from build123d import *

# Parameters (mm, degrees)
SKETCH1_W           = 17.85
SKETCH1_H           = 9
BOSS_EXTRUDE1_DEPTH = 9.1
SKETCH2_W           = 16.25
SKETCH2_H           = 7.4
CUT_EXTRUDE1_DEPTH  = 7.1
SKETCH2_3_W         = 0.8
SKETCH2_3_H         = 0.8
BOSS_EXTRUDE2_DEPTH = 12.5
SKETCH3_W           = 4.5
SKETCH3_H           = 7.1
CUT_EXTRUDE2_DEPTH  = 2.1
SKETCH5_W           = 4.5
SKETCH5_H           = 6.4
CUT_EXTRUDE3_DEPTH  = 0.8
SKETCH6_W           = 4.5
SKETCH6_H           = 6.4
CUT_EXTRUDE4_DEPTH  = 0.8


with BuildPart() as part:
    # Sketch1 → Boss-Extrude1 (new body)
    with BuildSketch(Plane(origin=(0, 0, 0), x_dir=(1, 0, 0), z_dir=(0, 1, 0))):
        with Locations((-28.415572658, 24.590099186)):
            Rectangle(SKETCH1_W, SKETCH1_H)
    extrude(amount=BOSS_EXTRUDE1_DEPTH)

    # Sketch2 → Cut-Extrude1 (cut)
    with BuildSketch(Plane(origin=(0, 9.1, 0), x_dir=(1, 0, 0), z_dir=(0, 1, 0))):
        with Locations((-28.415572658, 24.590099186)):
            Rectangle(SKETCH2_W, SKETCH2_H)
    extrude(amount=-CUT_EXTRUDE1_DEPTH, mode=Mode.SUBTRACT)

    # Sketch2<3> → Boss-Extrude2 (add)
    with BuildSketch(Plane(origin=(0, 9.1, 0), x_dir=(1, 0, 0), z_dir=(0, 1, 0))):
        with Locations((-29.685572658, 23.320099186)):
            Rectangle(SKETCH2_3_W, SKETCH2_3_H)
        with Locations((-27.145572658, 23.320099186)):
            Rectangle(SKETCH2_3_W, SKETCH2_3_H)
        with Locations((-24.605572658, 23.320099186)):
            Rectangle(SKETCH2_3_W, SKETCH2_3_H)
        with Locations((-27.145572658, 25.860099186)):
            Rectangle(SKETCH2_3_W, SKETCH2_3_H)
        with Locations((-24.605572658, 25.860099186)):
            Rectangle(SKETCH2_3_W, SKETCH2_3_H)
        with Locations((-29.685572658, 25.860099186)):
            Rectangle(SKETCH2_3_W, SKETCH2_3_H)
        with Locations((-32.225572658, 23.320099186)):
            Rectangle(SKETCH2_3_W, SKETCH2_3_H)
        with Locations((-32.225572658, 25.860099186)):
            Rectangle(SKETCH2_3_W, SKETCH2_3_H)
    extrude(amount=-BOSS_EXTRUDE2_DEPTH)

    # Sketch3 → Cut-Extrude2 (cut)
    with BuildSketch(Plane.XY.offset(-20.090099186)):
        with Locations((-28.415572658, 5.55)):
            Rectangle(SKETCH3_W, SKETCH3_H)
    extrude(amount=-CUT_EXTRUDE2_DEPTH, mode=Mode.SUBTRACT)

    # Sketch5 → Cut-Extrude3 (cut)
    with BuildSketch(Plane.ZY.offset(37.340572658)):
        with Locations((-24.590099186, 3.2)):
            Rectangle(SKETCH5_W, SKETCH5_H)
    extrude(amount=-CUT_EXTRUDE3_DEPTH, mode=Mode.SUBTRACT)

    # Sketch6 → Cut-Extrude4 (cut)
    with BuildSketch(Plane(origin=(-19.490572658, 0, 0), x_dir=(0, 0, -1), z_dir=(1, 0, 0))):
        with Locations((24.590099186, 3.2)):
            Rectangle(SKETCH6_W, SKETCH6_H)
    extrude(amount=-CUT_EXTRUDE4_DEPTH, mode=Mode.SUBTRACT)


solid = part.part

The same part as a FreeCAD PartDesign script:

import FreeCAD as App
import Part
import Sketcher
from FreeCAD import Vector

doc = App.newDocument("Part")
body = doc.addObject("PartDesign::Body", "Body")

# Sketch on XZ plane
sketch1 = doc.addObject("Sketcher::SketchObject", "Sketch")
body.addObject(sketch1)
sketch1.AttachmentSupport = (doc.XZ_Plane, [""])
sketch1.MapMode = "FlatFace"
sketch1.addGeometry(Part.LineSegment(Vector(-37, -29, 0), Vector(-37, -20, 0)), False)
sketch1.addGeometry(Part.LineSegment(Vector(-37, -20, 0), Vector(-19, -20, 0)), False)
sketch1.addGeometry(Part.LineSegment(Vector(-19, -20, 0), Vector(-19, -29, 0)), False)
sketch1.addGeometry(Part.LineSegment(Vector(-19, -29, 0), Vector(-37, -29, 0)), False)
sketch1.addConstraint(Sketcher.Constraint("Coincident", 0, 2, 1, 1))
sketch1.addConstraint(Sketcher.Constraint("Coincident", 1, 2, 2, 1))
sketch1.addConstraint(Sketcher.Constraint("Coincident", 2, 2, 3, 1))
sketch1.addConstraint(Sketcher.Constraint("Coincident", 3, 2, 0, 1))
sketch1.addConstraint(Sketcher.Constraint("Vertical", 0))
sketch1.addConstraint(Sketcher.Constraint("Horizontal", 1))
sketch1.addConstraint(Sketcher.Constraint("Vertical", 2))
sketch1.addConstraint(Sketcher.Constraint("Horizontal", 3))
sketch1.addConstraint(Sketcher.Constraint("DistanceY", 0, 1, 0, 2, 9.0))
sketch1.addConstraint(Sketcher.Constraint("DistanceX", 1, 1, 1, 2, 17.85))
sketch1.addConstraint(Sketcher.Constraint("DistanceY", 0, 2, -1, 1, 20.090099))
sketch1.addConstraint(Sketcher.Constraint("DistanceX", 0, 2, -1, 1, 37.340573))
pad1 = doc.addObject("PartDesign::Pad", "Pad")
body.addObject(pad1)
pad1.Profile = sketch1
pad1.Length = 9.1
pad1.Reversed = True

# Sketch on XZ plane
sketch2 = doc.addObject("Sketcher::SketchObject", "Sketch001")
body.addObject(sketch2)
sketch2.AttachmentSupport = (doc.XZ_Plane, [""])
sketch2.MapMode = "FlatFace"
sketch2.AttachmentOffset = App.Placement(Vector(0, 0, -9.1), App.Rotation())
sketch2.addGeometry(Part.LineSegment(Vector(-37, -28, 0), Vector(-37, -21, 0)), False)
sketch2.addGeometry(Part.LineSegment(Vector(-37, -21, 0), Vector(-20, -21, 0)), False)
sketch2.addGeometry(Part.LineSegment(Vector(-20, -21, 0), Vector(-20, -28, 0)), False)
sketch2.addGeometry(Part.LineSegment(Vector(-20, -28, 0), Vector(-37, -28, 0)), False)
sketch2.addConstraint(Sketcher.Constraint("Coincident", 0, 2, 1, 1))
sketch2.addConstraint(Sketcher.Constraint("Coincident", 1, 2, 2, 1))
sketch2.addConstraint(Sketcher.Constraint("Coincident", 2, 2, 3, 1))
sketch2.addConstraint(Sketcher.Constraint("Coincident", 3, 2, 0, 1))
sketch2.addConstraint(Sketcher.Constraint("Vertical", 0))
sketch2.addConstraint(Sketcher.Constraint("Horizontal", 1))
sketch2.addConstraint(Sketcher.Constraint("Vertical", 2))
sketch2.addConstraint(Sketcher.Constraint("Horizontal", 3))
sketch2.addConstraint(Sketcher.Constraint("DistanceY", 0, 1, 0, 2, 7.4))
sketch2.addConstraint(Sketcher.Constraint("DistanceX", 1, 1, 1, 2, 16.25))
sketch2.addConstraint(Sketcher.Constraint("DistanceY", 0, 2, -1, 1, 20.890099))
sketch2.addConstraint(Sketcher.Constraint("DistanceX", 0, 2, -1, 1, 36.540573))
pocket1 = doc.addObject("PartDesign::Pocket", "Pocket")
body.addObject(pocket1)
pocket1.Profile = sketch2
pocket1.Length = 7.1
pocket1.Reversed = True

# Sketch on XZ plane
sketch3 = doc.addObject("Sketcher::SketchObject", "Sketch002")
body.addObject(sketch3)
sketch3.AttachmentSupport = (doc.XZ_Plane, [""])
sketch3.MapMode = "FlatFace"
sketch3.AttachmentOffset = App.Placement(Vector(0, 0, -9.1), App.Rotation())
sketch3.addGeometry(Part.LineSegment(Vector(-30.1, -23.7, 0), Vector(-30.1, -22.9, 0)), False)
sketch3.addGeometry(Part.LineSegment(Vector(-30.1, -22.9, 0), Vector(-29.3, -22.9, 0)), False)
sketch3.addGeometry(Part.LineSegment(Vector(-29.3, -22.9, 0), Vector(-29.3, -23.7, 0)), False)
sketch3.addGeometry(Part.LineSegment(Vector(-29.3, -23.7, 0), Vector(-30.1, -23.7, 0)), False)
sketch3.addGeometry(Part.LineSegment(Vector(-27.5, -23.7, 0), Vector(-27.5, -22.9, 0)), False)
sketch3.addGeometry(Part.LineSegment(Vector(-27.5, -22.9, 0), Vector(-26.7, -22.9, 0)), False)
sketch3.addGeometry(Part.LineSegment(Vector(-26.7, -22.9, 0), Vector(-26.7, -23.7, 0)), False)
sketch3.addGeometry(Part.LineSegment(Vector(-26.7, -23.7, 0), Vector(-27.5, -23.7, 0)), False)
sketch3.addGeometry(Part.LineSegment(Vector(-25, -23.7, 0), Vector(-25, -22.9, 0)), False)
sketch3.addGeometry(Part.LineSegment(Vector(-25, -22.9, 0), Vector(-24.2, -22.9, 0)), False)
sketch3.addGeometry(Part.LineSegment(Vector(-24.2, -22.9, 0), Vector(-24.2, -23.7, 0)), False)
sketch3.addGeometry(Part.LineSegment(Vector(-24.2, -23.7, 0), Vector(-25, -23.7, 0)), False)
sketch3.addGeometry(Part.LineSegment(Vector(-27.5, -26.3, 0), Vector(-27.5, -25.5, 0)), False)
sketch3.addGeometry(Part.LineSegment(Vector(-27.5, -25.5, 0), Vector(-26.7, -25.5, 0)), False)
sketch3.addGeometry(Part.LineSegment(Vector(-26.7, -25.5, 0), Vector(-26.7, -26.3, 0)), False)
sketch3.addGeometry(Part.LineSegment(Vector(-26.7, -26.3, 0), Vector(-27.5, -26.3, 0)), False)
sketch3.addGeometry(Part.LineSegment(Vector(-25, -26.3, 0), Vector(-25, -25.5, 0)), False)
sketch3.addGeometry(Part.LineSegment(Vector(-25, -25.5, 0), Vector(-24.2, -25.5, 0)), False)
sketch3.addGeometry(Part.LineSegment(Vector(-24.2, -25.5, 0), Vector(-24.2, -26.3, 0)), False)
sketch3.addGeometry(Part.LineSegment(Vector(-24.2, -26.3, 0), Vector(-25, -26.3, 0)), False)
sketch3.addGeometry(Part.LineSegment(Vector(-30.1, -26.3, 0), Vector(-30.1, -25.5, 0)), False)
sketch3.addGeometry(Part.LineSegment(Vector(-30.1, -25.5, 0), Vector(-29.3, -25.5, 0)), False)
sketch3.addGeometry(Part.LineSegment(Vector(-29.3, -25.5, 0), Vector(-29.3, -26.3, 0)), False)
sketch3.addGeometry(Part.LineSegment(Vector(-29.3, -26.3, 0), Vector(-30.1, -26.3, 0)), False)
sketch3.addGeometry(Part.LineSegment(Vector(-32.6, -23.7, 0), Vector(-32.6, -22.9, 0)), False)
sketch3.addGeometry(Part.LineSegment(Vector(-32.6, -22.9, 0), Vector(-31.8, -22.9, 0)), False)
sketch3.addGeometry(Part.LineSegment(Vector(-31.8, -22.9, 0), Vector(-31.8, -23.7, 0)), False)
sketch3.addGeometry(Part.LineSegment(Vector(-31.8, -23.7, 0), Vector(-32.6, -23.7, 0)), False)
sketch3.addGeometry(Part.LineSegment(Vector(-32.6, -26.3, 0), Vector(-32.6, -25.5, 0)), False)
sketch3.addGeometry(Part.LineSegment(Vector(-32.6, -25.5, 0), Vector(-31.8, -25.5, 0)), False)
sketch3.addGeometry(Part.LineSegment(Vector(-31.8, -25.5, 0), Vector(-31.8, -26.3, 0)), False)
sketch3.addGeometry(Part.LineSegment(Vector(-31.8, -26.3, 0), Vector(-32.6, -26.3, 0)), False)
sketch3.addConstraint(Sketcher.Constraint("Coincident", 0, 2, 1, 1))
sketch3.addConstraint(Sketcher.Constraint("Coincident", 1, 2, 2, 1))
sketch3.addConstraint(Sketcher.Constraint("Coincident", 2, 2, 3, 1))
sketch3.addConstraint(Sketcher.Constraint("Coincident", 3, 2, 0, 1))
sketch3.addConstraint(Sketcher.Constraint("Coincident", 4, 2, 5, 1))
sketch3.addConstraint(Sketcher.Constraint("Coincident", 5, 2, 6, 1))
sketch3.addConstraint(Sketcher.Constraint("Coincident", 6, 2, 7, 1))
sketch3.addConstraint(Sketcher.Constraint("Coincident", 7, 2, 4, 1))
sketch3.addConstraint(Sketcher.Constraint("Coincident", 8, 2, 9, 1))
sketch3.addConstraint(Sketcher.Constraint("Coincident", 9, 2, 10, 1))
sketch3.addConstraint(Sketcher.Constraint("Coincident", 10, 2, 11, 1))
sketch3.addConstraint(Sketcher.Constraint("Coincident", 11, 2, 8, 1))
sketch3.addConstraint(Sketcher.Constraint("Coincident", 12, 2, 13, 1))
sketch3.addConstraint(Sketcher.Constraint("Coincident", 13, 2, 14, 1))
sketch3.addConstraint(Sketcher.Constraint("Coincident", 14, 2, 15, 1))
sketch3.addConstraint(Sketcher.Constraint("Coincident", 15, 2, 12, 1))
sketch3.addConstraint(Sketcher.Constraint("Coincident", 16, 2, 17, 1))
sketch3.addConstraint(Sketcher.Constraint("Coincident", 17, 2, 18, 1))
sketch3.addConstraint(Sketcher.Constraint("Coincident", 18, 2, 19, 1))
sketch3.addConstraint(Sketcher.Constraint("Coincident", 19, 2, 16, 1))
sketch3.addConstraint(Sketcher.Constraint("Coincident", 20, 2, 21, 1))
sketch3.addConstraint(Sketcher.Constraint("Coincident", 21, 2, 22, 1))
sketch3.addConstraint(Sketcher.Constraint("Coincident", 22, 2, 23, 1))
sketch3.addConstraint(Sketcher.Constraint("Coincident", 23, 2, 20, 1))
sketch3.addConstraint(Sketcher.Constraint("Coincident", 24, 2, 25, 1))
sketch3.addConstraint(Sketcher.Constraint("Coincident", 25, 2, 26, 1))
sketch3.addConstraint(Sketcher.Constraint("Coincident", 26, 2, 27, 1))
sketch3.addConstraint(Sketcher.Constraint("Coincident", 27, 2, 24, 1))
sketch3.addConstraint(Sketcher.Constraint("Coincident", 28, 2, 29, 1))
sketch3.addConstraint(Sketcher.Constraint("Coincident", 29, 2, 30, 1))
sketch3.addConstraint(Sketcher.Constraint("Coincident", 30, 2, 31, 1))
sketch3.addConstraint(Sketcher.Constraint("Coincident", 31, 2, 28, 1))
sketch3.addConstraint(Sketcher.Constraint("Vertical", 0))
sketch3.addConstraint(Sketcher.Constraint("Horizontal", 1))
sketch3.addConstraint(Sketcher.Constraint("Vertical", 2))
sketch3.addConstraint(Sketcher.Constraint("Horizontal", 3))
sketch3.addConstraint(Sketcher.Constraint("Vertical", 4))
sketch3.addConstraint(Sketcher.Constraint("Horizontal", 5))
sketch3.addConstraint(Sketcher.Constraint("Vertical", 6))
sketch3.addConstraint(Sketcher.Constraint("Horizontal", 7))
sketch3.addConstraint(Sketcher.Constraint("Vertical", 8))
sketch3.addConstraint(Sketcher.Constraint("Horizontal", 9))
sketch3.addConstraint(Sketcher.Constraint("Vertical", 10))
sketch3.addConstraint(Sketcher.Constraint("Horizontal", 11))
sketch3.addConstraint(Sketcher.Constraint("Vertical", 12))
sketch3.addConstraint(Sketcher.Constraint("Horizontal", 13))
sketch3.addConstraint(Sketcher.Constraint("Vertical", 14))
sketch3.addConstraint(Sketcher.Constraint("Horizontal", 15))
sketch3.addConstraint(Sketcher.Constraint("Vertical", 16))
sketch3.addConstraint(Sketcher.Constraint("Horizontal", 17))
sketch3.addConstraint(Sketcher.Constraint("Vertical", 18))
sketch3.addConstraint(Sketcher.Constraint("Horizontal", 19))
sketch3.addConstraint(Sketcher.Constraint("Vertical", 20))
sketch3.addConstraint(Sketcher.Constraint("Horizontal", 21))
sketch3.addConstraint(Sketcher.Constraint("Vertical", 22))
sketch3.addConstraint(Sketcher.Constraint("Horizontal", 23))
sketch3.addConstraint(Sketcher.Constraint("Vertical", 24))
sketch3.addConstraint(Sketcher.Constraint("Horizontal", 25))
sketch3.addConstraint(Sketcher.Constraint("Vertical", 26))
sketch3.addConstraint(Sketcher.Constraint("Horizontal", 27))
sketch3.addConstraint(Sketcher.Constraint("Vertical", 28))
sketch3.addConstraint(Sketcher.Constraint("Horizontal", 29))
sketch3.addConstraint(Sketcher.Constraint("Vertical", 30))
sketch3.addConstraint(Sketcher.Constraint("Horizontal", 31))
sketch3.addConstraint(Sketcher.Constraint("Horizontal", 1, 2, 4, 2))
sketch3.addConstraint(Sketcher.Constraint("Horizontal", 3, 2, 6, 2))
sketch3.addConstraint(Sketcher.Constraint("Horizontal", 5, 2, 8, 2))
sketch3.addConstraint(Sketcher.Constraint("Horizontal", 7, 2, 10, 2))
sketch3.addConstraint(Sketcher.Constraint("Horizontal", 13, 2, 16, 2))
sketch3.addConstraint(Sketcher.Constraint("Horizontal", 15, 2, 18, 2))
sketch3.addConstraint(Sketcher.Constraint("Horizontal", 17, 2, 20, 2))
sketch3.addConstraint(Sketcher.Constraint("Horizontal", 19, 2, 22, 2))
sketch3.addConstraint(Sketcher.Constraint("Horizontal", 9, 2, 24, 2))
sketch3.addConstraint(Sketcher.Constraint("Horizontal", 11, 2, 26, 2))
sketch3.addConstraint(Sketcher.Constraint("Horizontal", 21, 2, 28, 2))
sketch3.addConstraint(Sketcher.Constraint("Horizontal", 23, 2, 30, 2))
sketch3.addConstraint(Sketcher.Constraint("Vertical", 7, 2, 12, 2))
sketch3.addConstraint(Sketcher.Constraint("Vertical", 6, 2, 13, 2))
sketch3.addConstraint(Sketcher.Constraint("Vertical", 11, 2, 16, 2))
sketch3.addConstraint(Sketcher.Constraint("Vertical", 10, 2, 17, 2))
sketch3.addConstraint(Sketcher.Constraint("Vertical", 3, 2, 20, 2))
sketch3.addConstraint(Sketcher.Constraint("Vertical", 2, 2, 21, 2))
sketch3.addConstraint(Sketcher.Constraint("Vertical", 27, 2, 28, 2))
sketch3.addConstraint(Sketcher.Constraint("Vertical", 26, 2, 29, 2))
sketch3.addConstraint(Sketcher.Constraint("Equal", 3, 5))
sketch3.addConstraint(Sketcher.Constraint("Equal", 7, 9))
sketch3.addConstraint(Sketcher.Constraint("Equal", 23, 25))
sketch3.addConstraint(Sketcher.Constraint("Equal", 31, 0))
sketch3.addConstraint(Sketcher.Constraint("Equal", 10, 12))
sketch3.addConstraint(Sketcher.Constraint("DistanceX", 1, 1, 1, 2, 0.8))
sketch3.addConstraint(Sketcher.Constraint("DistanceX", 1, 2, 4, 2, 1.74))
sketch3.addConstraint(Sketcher.Constraint("DistanceX", 5, 2, 8, 2, 1.74))
sketch3.addConstraint(Sketcher.Constraint("DistanceY", 12, 2, 7, 2, 1.74))
sketch3.addConstraint(Sketcher.Constraint("DistanceX", 24, 2, 0, 2, 2.54))
sketch3.addConstraint(Sketcher.Constraint("DistanceY", 0, 2, -1, 1, 22.920099))
sketch3.addConstraint(Sketcher.Constraint("DistanceX", 0, 2, -1, 1, 30.085573))
pad2 = doc.addObject("PartDesign::Pad", "Pad001")
body.addObject(pad2)
pad2.Profile = sketch3
pad2.Length = 12.5

# Sketch on XY plane
sketch4 = doc.addObject("Sketcher::SketchObject", "Sketch003")
body.addObject(sketch4)
sketch4.AttachmentSupport = (doc.XY_Plane, [""])
sketch4.MapMode = "FlatFace"
sketch4.AttachmentOffset = App.Placement(Vector(0, 0, -20.090099), App.Rotation())
sketch4.addGeometry(Part.LineSegment(Vector(-30.7, 9.1, 0), Vector(-30.7, 2, 0)), False)
sketch4.addGeometry(Part.LineSegment(Vector(-30.7, 2, 0), Vector(-26.2, 2, 0)), False)
sketch4.addGeometry(Part.LineSegment(Vector(-26.2, 2, 0), Vector(-26.2, 9.1, 0)), False)
sketch4.addGeometry(Part.LineSegment(Vector(-26.2, 9.1, 0), Vector(-30.7, 9.1, 0)), False)
sketch4.addConstraint(Sketcher.Constraint("Coincident", 0, 2, 1, 1))
sketch4.addConstraint(Sketcher.Constraint("Coincident", 1, 2, 2, 1))
sketch4.addConstraint(Sketcher.Constraint("Coincident", 2, 2, 3, 1))
sketch4.addConstraint(Sketcher.Constraint("Coincident", 3, 2, 0, 1))
sketch4.addConstraint(Sketcher.Constraint("Vertical", 0))
sketch4.addConstraint(Sketcher.Constraint("Horizontal", 1))
sketch4.addConstraint(Sketcher.Constraint("Vertical", 2))
sketch4.addConstraint(Sketcher.Constraint("Horizontal", 3))
sketch4.addConstraint(Sketcher.Constraint("DistanceX", 1, 1, 1, 2, 4.5))
sketch4.addConstraint(Sketcher.Constraint("DistanceY", 0, 2, 0, 1, 7.1))
sketch4.addConstraint(Sketcher.Constraint("DistanceY", -1, 1, 0, 2, 2.0))
sketch4.addConstraint(Sketcher.Constraint("DistanceX", 0, 2, -1, 1, 30.665573))
pocket2 = doc.addObject("PartDesign::Pocket", "Pocket001")
body.addObject(pocket2)
pocket2.Profile = sketch4
pocket2.Length = 2.1

# Sketch on YZ plane
sketch5 = doc.addObject("Sketcher::SketchObject", "Sketch004")
body.addObject(sketch5)
sketch5.AttachmentSupport = (doc.YZ_Plane, [""])
sketch5.MapMode = "FlatFace"
sketch5.AttachmentOffset = App.Placement(Vector(0, 0, -37.340573), App.Rotation())
sketch5.addGeometry(Part.LineSegment(Vector(6.4, -26.8, 0), Vector(0, -26.8, 0)), False)
sketch5.addGeometry(Part.LineSegment(Vector(0, -26.8, 0), Vector(0, -22.3, 0)), False)
sketch5.addGeometry(Part.LineSegment(Vector(0, -22.3, 0), Vector(6.4, -22.3, 0)), False)
sketch5.addGeometry(Part.LineSegment(Vector(6.4, -22.3, 0), Vector(6.4, -26.8, 0)), False)
sketch5.addConstraint(Sketcher.Constraint("Coincident", 0, 2, 1, 1))
sketch5.addConstraint(Sketcher.Constraint("Coincident", 1, 2, 2, 1))
sketch5.addConstraint(Sketcher.Constraint("Coincident", 2, 2, 3, 1))
sketch5.addConstraint(Sketcher.Constraint("Coincident", 3, 2, 0, 1))
sketch5.addConstraint(Sketcher.Constraint("Horizontal", 0))
sketch5.addConstraint(Sketcher.Constraint("Vertical", 1))
sketch5.addConstraint(Sketcher.Constraint("Horizontal", 2))
sketch5.addConstraint(Sketcher.Constraint("Vertical", 3))
sketch5.addConstraint(Sketcher.Constraint("PointOnObject", 0, 2, -2))
sketch5.addConstraint(Sketcher.Constraint("DistanceX", 0, 2, 0, 1, 6.4))
sketch5.addConstraint(Sketcher.Constraint("DistanceY", 1, 1, 1, 2, 4.5))
sketch5.addConstraint(Sketcher.Constraint("DistanceY", 0, 2, -1, 1, 26.840099))
pocket3 = doc.addObject("PartDesign::Pocket", "Pocket002")
body.addObject(pocket3)
pocket3.Profile = sketch5
pocket3.Length = 0.8
pocket3.Reversed = True

# Sketch on YZ plane
sketch6 = doc.addObject("Sketcher::SketchObject", "Sketch005")
body.addObject(sketch6)
sketch6.AttachmentSupport = (doc.YZ_Plane, [""])
sketch6.MapMode = "FlatFace"
sketch6.AttachmentOffset = App.Placement(Vector(0, 0, -19.490573), App.Rotation())
sketch6.addGeometry(Part.LineSegment(Vector(6.4, -22.3, 0), Vector(0, -22.3, 0)), False)
sketch6.addGeometry(Part.LineSegment(Vector(0, -22.3, 0), Vector(0, -26.8, 0)), False)
sketch6.addGeometry(Part.LineSegment(Vector(0, -26.8, 0), Vector(6.4, -26.8, 0)), False)
sketch6.addGeometry(Part.LineSegment(Vector(6.4, -26.8, 0), Vector(6.4, -22.3, 0)), False)
sketch6.addConstraint(Sketcher.Constraint("Coincident", 0, 2, 1, 1))
sketch6.addConstraint(Sketcher.Constraint("Coincident", 1, 2, 2, 1))
sketch6.addConstraint(Sketcher.Constraint("Coincident", 2, 2, 3, 1))
sketch6.addConstraint(Sketcher.Constraint("Coincident", 3, 2, 0, 1))
sketch6.addConstraint(Sketcher.Constraint("Horizontal", 0))
sketch6.addConstraint(Sketcher.Constraint("Vertical", 1))
sketch6.addConstraint(Sketcher.Constraint("Horizontal", 2))
sketch6.addConstraint(Sketcher.Constraint("Vertical", 3))
sketch6.addConstraint(Sketcher.Constraint("PointOnObject", 0, 2, -2))
sketch6.addConstraint(Sketcher.Constraint("DistanceX", 0, 2, 0, 1, 6.4))
sketch6.addConstraint(Sketcher.Constraint("DistanceY", 1, 2, 1, 1, 4.5))
sketch6.addConstraint(Sketcher.Constraint("DistanceY", 0, 2, -1, 1, 22.340099))
pocket4 = doc.addObject("PartDesign::Pocket", "Pocket003")
body.addObject(pocket4)
pocket4.Profile = sketch6
pocket4.Length = 0.8

doc.recompute()
